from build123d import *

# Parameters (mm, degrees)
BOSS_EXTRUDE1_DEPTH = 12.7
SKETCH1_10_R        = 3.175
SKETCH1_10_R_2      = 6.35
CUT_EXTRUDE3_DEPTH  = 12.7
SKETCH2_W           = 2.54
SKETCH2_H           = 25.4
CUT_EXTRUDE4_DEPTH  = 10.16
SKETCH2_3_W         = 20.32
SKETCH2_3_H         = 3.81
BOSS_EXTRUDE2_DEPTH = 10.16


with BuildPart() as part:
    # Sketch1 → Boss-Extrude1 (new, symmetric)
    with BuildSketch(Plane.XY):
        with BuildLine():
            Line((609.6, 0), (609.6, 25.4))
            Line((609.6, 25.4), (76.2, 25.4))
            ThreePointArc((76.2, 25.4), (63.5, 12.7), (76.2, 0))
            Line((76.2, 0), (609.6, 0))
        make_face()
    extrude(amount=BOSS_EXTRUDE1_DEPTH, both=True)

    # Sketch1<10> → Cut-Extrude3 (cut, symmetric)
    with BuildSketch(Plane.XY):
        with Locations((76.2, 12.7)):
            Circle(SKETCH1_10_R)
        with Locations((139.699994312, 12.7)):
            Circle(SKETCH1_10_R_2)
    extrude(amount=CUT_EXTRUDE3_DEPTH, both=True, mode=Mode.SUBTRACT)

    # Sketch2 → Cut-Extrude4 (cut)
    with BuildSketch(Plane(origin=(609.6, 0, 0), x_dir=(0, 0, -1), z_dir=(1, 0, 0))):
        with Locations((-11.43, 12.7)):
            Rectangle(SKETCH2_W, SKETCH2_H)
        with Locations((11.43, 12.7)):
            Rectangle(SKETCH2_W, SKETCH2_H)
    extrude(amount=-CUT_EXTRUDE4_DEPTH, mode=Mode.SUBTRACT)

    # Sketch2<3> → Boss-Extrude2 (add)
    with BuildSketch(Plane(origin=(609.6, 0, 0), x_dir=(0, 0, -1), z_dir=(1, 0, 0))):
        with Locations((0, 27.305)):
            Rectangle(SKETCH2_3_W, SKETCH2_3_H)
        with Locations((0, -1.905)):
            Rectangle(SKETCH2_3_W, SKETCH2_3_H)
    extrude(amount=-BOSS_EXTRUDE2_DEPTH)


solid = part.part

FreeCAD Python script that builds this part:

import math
import FreeCAD as App
import Part
import Sketcher

V = App.Vector
Q = App.Units.Quantity

doc = App.newDocument("Part")
params = doc.addObject("Spreadsheet::Sheet", "Params")
for row, (alias, value) in enumerate([
    ("sketch1_radius", "0.5 in"),
    ("sketch1_width", "21 in"),
    ("pad1_length", "1 in"),
    ("sketch2_diameter", "0.5 in"),
    ("sketch2_diameter2", "0.25 in"),
    ("pocket1_length", "1 in"),
    ("sketch3_width", "1 in"),
    ("sketch3_height", "0.1 in"),
    ("pocket2_length", "0.4 in"),
    ("sketch4_height", "0.8 in"),
    ("sketch4_width", "0.15 in"),
    ("pad2_length", "0.4 in"),
], start=1):
    params.set(f"A{row}", alias)
    params.set(f"B{row}", "=" + value)
    params.setAlias(f"B{row}", alias)

body = doc.addObject("PartDesign::Body", "Body")

sketch1 = body.newObject("Sketcher::SketchObject", "Sketch")
sketch1.AttachmentSupport = (doc.getObject("XY_Plane"), [""])
sketch1.MapMode = "FlatFace"
sketch1.addGeometry([
    Part.LineSegment(V(610, 0, 0), V(610, 25, 0)),
    Part.LineSegment(V(610, 25, 0), V(76, 25, 0)),
    Part.ArcOfCircle(Part.Circle(V(76, 13, 0), V(0, 0, 1), 13), math.radians(90), math.radians(270)),
    Part.LineSegment(V(76, 0, 0), V(610, 0, 0)),
], False)
sketch1.addConstraint([
    Sketcher.Constraint("Coincident", 0, 2, 1, 1),
    Sketcher.Constraint("Tangent", 1, 2, 2, 1),
    Sketcher.Constraint("Tangent", 2, 2, 3, 1),
    Sketcher.Constraint("Coincident", 3, 2, 0, 1),
    Sketcher.Constraint("Vertical", 0),
    Sketcher.Constraint("Horizontal", 1),
    Sketcher.Constraint("Horizontal", 3),
    Sketcher.Constraint("PointOnObject", 2, 2, -1),
    Sketcher.Constraint("Radius", 2, Q("0.5 in")),
    Sketcher.Constraint("DistanceX", 1, 2, 1, 1, Q("21 in")),
    Sketcher.Constraint("DistanceX", -1, 1, 2, 3, Q("3 in")),
])
sketch1.setExpression("Constraints[8]", "Params.sketch1_radius")
sketch1.setExpression("Constraints[9]", "Params.sketch1_width")
pad1 = body.newObject("PartDesign::Pad", "Pad")
pad1.Profile = sketch1
pad1.setExpression("Length", "Params.pad1_length")
pad1.Midplane = True

sketch2 = body.newObject("Sketcher::SketchObject", "Sketch001")
sketch2.AttachmentSupport = (doc.getObject("XY_Plane"), [""])
sketch2.MapMode = "FlatFace"
sketch2.addGeometry([
    Part.Circle(V(76.2, 12.7, 0), V(0, 0, 1), 3.2),
    Part.Circle(V(139.7, 12.7, 0), V(0, 0, 1), 6.3),
], False)
sketch2.addConstraint([
    Sketcher.Constraint("Horizontal", 0, 3, 1, 3),
    Sketcher.Constraint("Diameter", 1, Q("0.5 in")),
    Sketcher.Constraint("Diameter", 0, Q("0.25 in")),
    Sketcher.Constraint("DistanceX", -1, 1, 0, 3, Q("3 in")),
    Sketcher.Constraint("DistanceY", -1, 1, 0, 3, Q("0.5 in")),
    Sketcher.Constraint("DistanceX", -1, 1, 1, 3, Q("139.699994 mm")),
])
sketch2.setExpression("Constraints[1]", "Params.sketch2_diameter")
sketch2.setExpression("Constraints[2]", "Params.sketch2_diameter2")
pocket1 = body.newObject("PartDesign::Pocket", "Pocket")
pocket1.Profile = sketch2
pocket1.setExpression("Length", "Params.pocket1_length")
pocket1.Midplane = True

sketch3 = body.newObject("Sketcher::SketchObject", "Sketch002")
sketch3.AttachmentSupport = (doc.getObject("YZ_Plane"), [""])
sketch3.MapMode = "FlatFace"
sketch3.AttachmentOffset = App.Placement(V(0, 0, 24 * 25.4), App.Rotation())
sketch3.addGeometry([
    Part.LineSegment(V(25.4, 12.7, 0), V(0, 12.7, 0)),
    Part.LineSegment(V(0, 12.7, 0), V(0, 10.2, 0)),
    Part.LineSegment(V(0, 10.2, 0), V(25.4, 10.2, 0)),
    Part.LineSegment(V(25.4, 10.2, 0), V(25.4, 12.7, 0)),
    Part.LineSegment(V(25.4, -10.2, 0), V(0, -10.2, 0)),
    Part.LineSegment(V(0, -10.2, 0), V(0, -12.7, 0)),
    Part.LineSegment(V(0, -12.7, 0), V(25.4, -12.7, 0)),
    Part.LineSegment(V(25.4, -12.7, 0), V(25.4, -10.2, 0)),
], False)
sketch3.addConstraint([
    Sketcher.Constraint("Coincident", 0, 2, 1, 1),
    Sketcher.Constraint("Coincident", 1, 2, 2, 1),
    Sketcher.Constraint("Coincident", 2, 2, 3, 1),
    Sketcher.Constraint("Coincident", 3, 2, 0, 1),
    Sketcher.Constraint("Coincident", 4, 2, 5, 1),
    Sketcher.Constraint("Coincident", 5, 2, 6, 1),
    Sketcher.Constraint("Coincident", 6, 2, 7, 1),
    Sketcher.Constraint("Coincident", 7, 2, 4, 1),
    Sketcher.Constraint("Horizontal", 0),
    Sketcher.Constraint("Vertical", 1),
    Sketcher.Constraint("Horizontal", 2),
    Sketcher.Constraint("Vertical", 3),
    Sketcher.Constraint("Horizontal", 4),
    Sketcher.Constraint("Vertical", 5),
    Sketcher.Constraint("Horizontal", 6),
    Sketcher.Constraint("Vertical", 7),
    Sketcher.Constraint("Symmetric", 1, 2, 4, 2, -1, 1),
    Sketcher.Constraint("Symmetric", 0, 2, 5, 2, -1),
    Sketcher.Constraint("Vertical", 3, 2, 6, 2),
    Sketcher.Constraint("DistanceX", 0, 2, 0, 1, Q("1 in")),
    Sketcher.Constraint("DistanceY", 1, 2, 1, 1, Q("0.1 in")),
    Sketcher.Constraint("DistanceY", 5, 2, 0, 2, Q("1 in")),
])
sketch3.setExpression("Constraints[19]", "Params.sketch3_width")
sketch3.setExpression("Constraints[20]", "Params.sketch3_height")
pocket2 = body.newObject("PartDesign::Pocket", "Pocket001")
pocket2.Profile = sketch3
pocket2.setExpression("Length", "Params.pocket2_length")

sketch4 = body.newObject("Sketcher::SketchObject", "Sketch003")
sketch4.AttachmentSupport = (doc.getObject("YZ_Plane"), [""])
sketch4.MapMode = "FlatFace"
sketch4.AttachmentOffset = App.Placement(V(0, 0, 24 * 25.4), App.Rotation())
sketch4.addGeometry([
    Part.LineSegment(V(29.2, 10.2, 0), V(25.4, 10.2, 0)),
    Part.LineSegment(V(25.4, 10.2, 0), V(25.4, -10.2, 0)),
    Part.LineSegment(V(25.4, -10.2, 0), V(29.2, -10.2, 0)),
    Part.LineSegment(V(29.2, -10.2, 0), V(29.2, 10.2, 0)),
    Part.LineSegment(V(0, 10.2, 0), V(-3.8, 10.2, 0)),
    Part.LineSegment(V(-3.8, 10.2, 0), V(-3.8, -10.2, 0)),
    Part.LineSegment(V(-3.8, -10.2, 0), V(0, -10.2, 0)),
    Part.LineSegment(V(0, -10.2, 0), V(0, 10.2, 0)),
], False)
sketch4.addConstraint([
    Sketcher.Constraint("Coincident", 0, 2, 1, 1),
    Sketcher.Constraint("Coincident", 1, 2, 2, 1),
    Sketcher.Constraint("Coincident", 2, 2, 3, 1),
    Sketcher.Constraint("Coincident", 3, 2, 0, 1),
    Sketcher.Constraint("Coincident", 4, 2, 5, 1),
    Sketcher.Constraint("Coincident", 5, 2, 6, 1),
    Sketcher.Constraint("Coincident", 6, 2, 7, 1),
    Sketcher.Constraint("Coincident", 7, 2, 4, 1),
    Sketcher.Constraint("Horizontal", 0),
    Sketcher.Constraint("Vertical", 1),
    Sketcher.Constraint("Horizontal", 2),
    Sketcher.Constraint("Vertical", 3),
    Sketcher.Constraint("Horizontal", 4),
    Sketcher.Constraint("Vertical", 5),
    Sketcher.Constraint("Horizontal", 6),
    Sketcher.Constraint("Vertical", 7),
    Sketcher.Constraint("Symmetric", 6, 2, 7, 2, -1, 1),
    Sketcher.Constraint("Horizontal", 3, 2, 4, 2),
    Sketcher.Constraint("Horizontal", 2, 2, 5, 2),
    Sketcher.Constraint("Equal", 2, 4),
    Sketcher.Constraint("DistanceY", 1, 2, 1, 1, Q("0.8 in")),
    Sketcher.Constraint("DistanceX", -1, 1, 0, 2, Q("1 in")),
    Sketcher.Constraint("DistanceX", 0, 2, 0, 1, Q("0.15 in")),
])
sketch4.setExpression("Constraints[20]", "Params.sketch4_height")
sketch4.setExpression("Constraints[22]", "Params.sketch4_width")
pad2 = body.newObject("PartDesign::Pad", "Pad001")
pad2.Profile = sketch4
pad2.setExpression("Length", "Params.pad2_length")
pad2.Reversed = True

doc.recompute()
